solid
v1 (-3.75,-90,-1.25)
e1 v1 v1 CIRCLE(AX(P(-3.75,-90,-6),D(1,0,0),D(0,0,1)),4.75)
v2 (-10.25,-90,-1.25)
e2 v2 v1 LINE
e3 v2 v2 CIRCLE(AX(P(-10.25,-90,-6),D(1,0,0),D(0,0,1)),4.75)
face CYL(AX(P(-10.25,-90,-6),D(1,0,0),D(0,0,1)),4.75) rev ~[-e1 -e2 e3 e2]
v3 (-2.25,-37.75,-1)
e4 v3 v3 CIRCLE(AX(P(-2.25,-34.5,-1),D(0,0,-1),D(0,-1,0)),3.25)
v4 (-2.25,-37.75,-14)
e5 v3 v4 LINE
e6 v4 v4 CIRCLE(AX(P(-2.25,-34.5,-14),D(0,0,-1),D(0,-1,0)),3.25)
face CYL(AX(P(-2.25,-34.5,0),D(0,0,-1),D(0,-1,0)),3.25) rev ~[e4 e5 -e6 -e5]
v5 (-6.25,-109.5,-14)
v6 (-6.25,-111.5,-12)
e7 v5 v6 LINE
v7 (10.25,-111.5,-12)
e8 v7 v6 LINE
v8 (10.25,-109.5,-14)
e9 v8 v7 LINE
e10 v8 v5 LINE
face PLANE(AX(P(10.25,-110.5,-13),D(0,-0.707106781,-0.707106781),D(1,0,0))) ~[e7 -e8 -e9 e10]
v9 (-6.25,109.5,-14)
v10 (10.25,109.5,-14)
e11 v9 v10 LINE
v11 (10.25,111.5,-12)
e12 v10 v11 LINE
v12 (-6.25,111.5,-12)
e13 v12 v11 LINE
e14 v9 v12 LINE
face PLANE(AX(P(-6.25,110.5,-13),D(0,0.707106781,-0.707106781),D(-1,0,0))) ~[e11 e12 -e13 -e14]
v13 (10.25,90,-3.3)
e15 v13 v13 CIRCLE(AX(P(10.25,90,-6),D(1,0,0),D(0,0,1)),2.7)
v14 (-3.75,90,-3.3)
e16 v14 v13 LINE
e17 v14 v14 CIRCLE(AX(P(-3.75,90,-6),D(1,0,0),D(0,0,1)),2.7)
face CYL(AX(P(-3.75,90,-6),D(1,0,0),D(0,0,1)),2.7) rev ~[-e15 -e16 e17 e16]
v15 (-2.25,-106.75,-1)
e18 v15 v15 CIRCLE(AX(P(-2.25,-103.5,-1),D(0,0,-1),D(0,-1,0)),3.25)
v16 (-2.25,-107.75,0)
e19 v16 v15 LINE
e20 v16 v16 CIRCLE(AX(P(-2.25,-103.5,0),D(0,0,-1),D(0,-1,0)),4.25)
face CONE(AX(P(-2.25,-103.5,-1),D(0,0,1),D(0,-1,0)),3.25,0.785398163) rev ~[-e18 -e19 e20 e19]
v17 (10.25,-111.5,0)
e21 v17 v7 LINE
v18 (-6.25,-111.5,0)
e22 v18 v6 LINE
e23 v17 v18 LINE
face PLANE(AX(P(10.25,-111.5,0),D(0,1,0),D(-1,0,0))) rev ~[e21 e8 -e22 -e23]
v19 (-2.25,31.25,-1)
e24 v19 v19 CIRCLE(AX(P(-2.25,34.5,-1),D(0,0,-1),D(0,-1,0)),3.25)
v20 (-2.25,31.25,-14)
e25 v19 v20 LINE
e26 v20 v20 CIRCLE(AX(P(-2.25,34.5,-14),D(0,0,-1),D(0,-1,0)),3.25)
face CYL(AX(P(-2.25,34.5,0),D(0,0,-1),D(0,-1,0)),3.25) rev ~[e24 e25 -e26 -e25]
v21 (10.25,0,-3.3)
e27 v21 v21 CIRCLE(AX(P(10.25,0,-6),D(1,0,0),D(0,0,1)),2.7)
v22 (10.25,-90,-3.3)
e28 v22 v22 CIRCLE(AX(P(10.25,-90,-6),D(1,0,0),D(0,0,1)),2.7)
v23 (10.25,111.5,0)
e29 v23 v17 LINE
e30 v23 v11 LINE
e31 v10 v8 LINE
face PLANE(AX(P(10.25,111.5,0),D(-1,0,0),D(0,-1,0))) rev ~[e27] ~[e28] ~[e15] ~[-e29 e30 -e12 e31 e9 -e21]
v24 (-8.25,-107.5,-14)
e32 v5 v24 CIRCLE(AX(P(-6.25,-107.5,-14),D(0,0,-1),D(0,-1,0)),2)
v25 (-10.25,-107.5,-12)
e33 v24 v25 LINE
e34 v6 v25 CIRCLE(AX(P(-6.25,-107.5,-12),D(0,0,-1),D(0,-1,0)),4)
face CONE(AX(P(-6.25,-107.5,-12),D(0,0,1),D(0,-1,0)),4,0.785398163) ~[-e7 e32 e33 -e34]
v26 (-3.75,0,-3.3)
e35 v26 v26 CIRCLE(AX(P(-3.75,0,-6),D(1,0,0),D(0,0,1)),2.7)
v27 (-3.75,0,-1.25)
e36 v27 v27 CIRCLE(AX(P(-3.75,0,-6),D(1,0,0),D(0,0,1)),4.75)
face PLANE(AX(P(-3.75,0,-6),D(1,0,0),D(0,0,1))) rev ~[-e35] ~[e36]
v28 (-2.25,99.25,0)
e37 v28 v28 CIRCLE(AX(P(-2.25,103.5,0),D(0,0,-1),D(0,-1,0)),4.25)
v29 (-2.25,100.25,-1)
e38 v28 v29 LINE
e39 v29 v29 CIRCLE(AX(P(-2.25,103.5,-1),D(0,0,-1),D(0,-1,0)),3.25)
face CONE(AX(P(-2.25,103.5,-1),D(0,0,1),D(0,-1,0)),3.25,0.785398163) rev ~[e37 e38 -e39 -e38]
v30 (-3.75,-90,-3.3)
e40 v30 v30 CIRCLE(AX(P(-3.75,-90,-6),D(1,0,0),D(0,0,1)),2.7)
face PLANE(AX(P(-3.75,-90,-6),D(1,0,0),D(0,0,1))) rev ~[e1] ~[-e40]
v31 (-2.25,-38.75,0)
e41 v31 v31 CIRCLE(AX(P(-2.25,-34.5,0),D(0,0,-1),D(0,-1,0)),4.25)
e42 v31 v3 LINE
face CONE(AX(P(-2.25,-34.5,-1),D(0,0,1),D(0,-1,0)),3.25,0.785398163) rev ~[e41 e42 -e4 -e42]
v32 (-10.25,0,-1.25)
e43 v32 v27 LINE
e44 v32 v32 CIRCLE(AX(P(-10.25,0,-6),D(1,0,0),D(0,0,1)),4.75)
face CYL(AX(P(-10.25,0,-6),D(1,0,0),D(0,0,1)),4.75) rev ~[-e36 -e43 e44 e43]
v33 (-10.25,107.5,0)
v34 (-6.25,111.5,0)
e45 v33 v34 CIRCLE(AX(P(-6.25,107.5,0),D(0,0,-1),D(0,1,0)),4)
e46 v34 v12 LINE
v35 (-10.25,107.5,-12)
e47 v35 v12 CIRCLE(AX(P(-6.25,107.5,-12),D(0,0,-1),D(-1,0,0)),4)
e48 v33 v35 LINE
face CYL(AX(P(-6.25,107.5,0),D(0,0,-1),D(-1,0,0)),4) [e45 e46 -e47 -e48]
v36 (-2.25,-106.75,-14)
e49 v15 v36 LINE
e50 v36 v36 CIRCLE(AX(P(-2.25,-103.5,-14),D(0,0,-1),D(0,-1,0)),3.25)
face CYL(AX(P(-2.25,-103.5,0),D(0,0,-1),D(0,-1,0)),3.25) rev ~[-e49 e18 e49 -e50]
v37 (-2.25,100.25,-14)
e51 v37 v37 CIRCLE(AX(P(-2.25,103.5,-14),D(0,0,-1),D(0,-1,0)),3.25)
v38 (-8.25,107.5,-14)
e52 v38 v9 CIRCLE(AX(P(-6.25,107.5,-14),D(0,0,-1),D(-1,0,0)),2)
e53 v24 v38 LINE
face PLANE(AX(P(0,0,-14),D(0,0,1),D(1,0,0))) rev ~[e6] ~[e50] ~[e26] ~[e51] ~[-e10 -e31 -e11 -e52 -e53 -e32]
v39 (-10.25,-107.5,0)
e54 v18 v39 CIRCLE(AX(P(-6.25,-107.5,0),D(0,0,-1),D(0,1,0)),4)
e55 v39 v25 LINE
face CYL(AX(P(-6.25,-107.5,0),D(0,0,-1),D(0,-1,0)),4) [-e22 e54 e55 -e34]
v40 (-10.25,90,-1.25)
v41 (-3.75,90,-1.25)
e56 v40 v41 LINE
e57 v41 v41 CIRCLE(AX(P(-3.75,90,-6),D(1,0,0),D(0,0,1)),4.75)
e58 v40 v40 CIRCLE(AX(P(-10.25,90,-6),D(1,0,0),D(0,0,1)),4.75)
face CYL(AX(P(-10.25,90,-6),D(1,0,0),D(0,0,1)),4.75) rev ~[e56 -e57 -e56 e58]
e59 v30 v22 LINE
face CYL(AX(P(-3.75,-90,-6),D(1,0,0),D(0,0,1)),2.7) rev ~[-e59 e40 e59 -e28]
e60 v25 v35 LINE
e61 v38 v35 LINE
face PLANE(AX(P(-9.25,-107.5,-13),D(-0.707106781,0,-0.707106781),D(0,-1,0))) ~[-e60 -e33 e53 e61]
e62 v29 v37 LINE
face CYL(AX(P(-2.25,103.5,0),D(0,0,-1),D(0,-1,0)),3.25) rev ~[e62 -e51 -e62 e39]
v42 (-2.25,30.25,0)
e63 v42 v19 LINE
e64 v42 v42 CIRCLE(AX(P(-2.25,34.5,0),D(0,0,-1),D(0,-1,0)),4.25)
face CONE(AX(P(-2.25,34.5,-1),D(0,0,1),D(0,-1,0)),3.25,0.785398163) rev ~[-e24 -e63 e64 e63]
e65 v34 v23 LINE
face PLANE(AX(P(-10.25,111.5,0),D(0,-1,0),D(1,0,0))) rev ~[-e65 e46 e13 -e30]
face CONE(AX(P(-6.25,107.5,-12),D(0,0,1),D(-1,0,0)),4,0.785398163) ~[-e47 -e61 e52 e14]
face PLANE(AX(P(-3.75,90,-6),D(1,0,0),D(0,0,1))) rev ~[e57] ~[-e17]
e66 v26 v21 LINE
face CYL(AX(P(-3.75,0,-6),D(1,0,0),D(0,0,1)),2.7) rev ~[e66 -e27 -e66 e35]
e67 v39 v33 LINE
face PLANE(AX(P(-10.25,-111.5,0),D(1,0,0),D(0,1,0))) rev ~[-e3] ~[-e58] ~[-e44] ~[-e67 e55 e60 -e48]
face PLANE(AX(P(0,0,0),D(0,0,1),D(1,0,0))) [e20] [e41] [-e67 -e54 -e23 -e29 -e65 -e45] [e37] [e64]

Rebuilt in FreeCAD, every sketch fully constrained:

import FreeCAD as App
import Part
import Sketcher

V = App.Vector


def edges_at(feature, points):
    """Names of the edges that pass closest to the given points."""
    edges = feature.Shape.Edges
    near = lambda p: min(range(len(edges)), key=lambda i: edges[i].distToShape(Part.Vertex(*p))[0])
    return sorted({f"Edge{near(p) + 1}" for p in points})

doc = App.newDocument("Part")
body = doc.addObject("PartDesign::Body", "Body")

sketch1 = body.newObject("Sketcher::SketchObject", "Sketch")
sketch1.AttachmentSupport = (doc.getObject("XY_Plane"), [""])
sketch1.MapMode = "FlatFace"
sketch1.addGeometry(Part.LineSegment(V(-10, -112, 0), V(10, -112, 0)), False)
sketch1.addGeometry(Part.LineSegment(V(10, -112, 0), V(10, 112, 0)), False)
sketch1.addGeometry(Part.LineSegment(V(10, 112, 0), V(-10, 112, 0)), False)
sketch1.addGeometry(Part.LineSegment(V(-10, 112, 0), V(-10, -112, 0)), False)
sketch1.addConstraint(Sketcher.Constraint("Coincident", 0, 2, 1, 1))
sketch1.addConstraint(Sketcher.Constraint("Coincident", 1, 2, 2, 1))
sketch1.addConstraint(Sketcher.Constraint("Coincident", 2, 2, 3, 1))
sketch1.addConstraint(Sketcher.Constraint("Coincident", 3, 2, 0, 1))
sketch1.addConstraint(Sketcher.Constraint("Horizontal", 0))
sketch1.addConstraint(Sketcher.Constraint("Vertical", 1))
sketch1.addConstraint(Sketcher.Constraint("Horizontal", 2))
sketch1.addConstraint(Sketcher.Constraint("Vertical", 3))
sketch1.addConstraint(Sketcher.Constraint("Symmetric", 0, 2, 2, 2, -1, 1))
sketch1.addConstraint(Sketcher.Constraint("DistanceX", 0, 1, 0, 2, 20.5))
sketch1.addConstraint(Sketcher.Constraint("DistanceY", 1, 1, 1, 2, 223.0))
pad1 = body.newObject("PartDesign::Pad", "Pad")
pad1.Profile = sketch1
pad1.Length = 14
pad1.Reversed = True
doc.recompute()

fillet = body.newObject("PartDesign::Fillet", "Fillet")
fillet.Base = (pad1, edges_at(pad1, [(-10.25, 111.5, -7), (-10.25, -111.5, -7)]))
fillet.Radius = 4
doc.recompute()

chamfer = body.newObject("PartDesign::Chamfer", "Chamfer")
chamfer.Base = (fillet, edges_at(fillet, [
    (2, 111.5, -14),
    (-9.078, 110.328, -14),
    (-10.25, 0, -14),
    (-9.078, -110.328, -14),
    (2, -111.5, -14),
]))
chamfer.Size = 2

sketch2 = body.newObject("Sketcher::SketchObject", "Sketch001")
sketch2.AttachmentSupport = (doc.getObject("XY_Plane"), [""])
sketch2.MapMode = "FlatFace"
sketch2.addGeometry(Part.Circle(V(-2.2, 103.5, 0), V(0, 0, 1), 3.2), False)
sketch2.addGeometry(Part.Circle(V(-2.2, 34.5, 0), V(0, 0, 1), 3.2), False)
sketch2.addGeometry(Part.Circle(V(-2.2, -34.5, 0), V(0, 0, 1), 3.2), False)
sketch2.addGeometry(Part.Circle(V(-2.2, -103.5, 0), V(0, 0, 1), 3.2), False)
sketch2.addConstraint(Sketcher.Constraint("Equal", 0, 1))
sketch2.addConstraint(Sketcher.Constraint("Equal", 1, 2))
sketch2.addConstraint(Sketcher.Constraint("Equal", 2, 3))
sketch2.addConstraint(Sketcher.Constraint("Symmetric", 1, 3, 2, 3, -1))
sketch2.addConstraint(Sketcher.Constraint("Symmetric", 0, 3, 3, 3, -1))
sketch2.addConstraint(Sketcher.Constraint("Vertical", 0, 3, 1, 3))
sketch2.addConstraint(Sketcher.Constraint("Diameter", 0, 6.5))
sketch2.addConstraint(Sketcher.Constraint("DistanceY", 1, 3, 0, 3, 69.0))
sketch2.addConstraint(Sketcher.Constraint("DistanceY", 2, 3, 1, 3, 69.0))
sketch2.addConstraint(Sketcher.Constraint("DistanceX", 0, 3, -1, 1, 2.25))
doc.recompute()
hole = body.newObject("PartDesign::Hole", "Hole")
hole.Profile = sketch2
hole.ThreadType = "None"
hole.Diameter = 6.5
hole.DepthType = "ThroughAll"

sketch3 = body.newObject("Sketcher::SketchObject", "Sketch002")
sketch3.AttachmentSupport = (doc.getObject("YZ_Plane"), [""])
sketch3.MapMode = "FlatFace"
sketch3.AttachmentOffset = App.Placement(V(0, 0, -10.25), App.Rotation())
sketch3.addGeometry(Part.Circle(V(90, -6, 0), V(0, 0, 1), 2.7), False)
sketch3.addGeometry(Part.Circle(V(0, -6, 0), V(0, 0, 1), 2.7), False)
sketch3.addGeometry(Part.Circle(V(-90, -6, 0), V(0, 0, 1), 2.7), False)
sketch3.addConstraint(Sketcher.Constraint("Equal", 0, 1))
sketch3.addConstraint(Sketcher.Constraint("Equal", 1, 2))
sketch3.addConstraint(Sketcher.Constraint("Symmetric", 0, 3, 2, 3, -2))
sketch3.addConstraint(Sketcher.Constraint("PointOnObject", 1, 3, -2))
sketch3.addConstraint(Sketcher.Constraint("Horizontal", 0, 3, 1, 3))
sketch3.addConstraint(Sketcher.Constraint("Diameter", 0, 5.4))
sketch3.addConstraint(Sketcher.Constraint("DistanceX", -1, 1, 0, 3, 90.0))
sketch3.addConstraint(Sketcher.Constraint("DistanceY", 0, 3, -1, 1, 6.0))
doc.recompute()
hole2 = body.newObject("PartDesign::Hole", "Hole001")
hole2.Profile = sketch3
hole2.ThreadType = "None"
hole2.Diameter = 5.4
hole2.DepthType = "ThroughAll"
hole2.HoleCutType = "Counterbore"
hole2.HoleCutDiameter = 9.5
hole2.HoleCutDepth = 6.5
hole2.Reversed = True
doc.recompute()

chamfer2 = body.newObject("PartDesign::Chamfer", "Chamfer001")
chamfer2.Base = (hole2, edges_at(hole2, [
    (-2.25, -100.25, 0),
    (-2.25, -31.25, 0),
    (-2.25, 37.75, 0),
    (-2.25, 106.75, 0),
]))
chamfer2.Size = 1

doc.recompute()
